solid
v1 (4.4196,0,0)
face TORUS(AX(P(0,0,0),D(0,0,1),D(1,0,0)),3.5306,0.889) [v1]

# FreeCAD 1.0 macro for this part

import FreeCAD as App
import Part
import Sketcher
from FreeCAD import Vector
Q = App.Units.Quantity

doc = App.newDocument("Part")
body = doc.addObject("PartDesign::Body", "Body")

# Sketch on YZ plane
sketch1 = body.newObject("Sketcher::SketchObject", "Sketch")
sketch1.AttachmentSupport = (doc.getObject("YZ_Plane"), [""])
sketch1.MapMode = "FlatFace"
sketch1.addGeometry(Part.Circle(Vector(-3.5306, 0, 0), Vector(0, 0, 1), 0.889), False)
sketch1.addConstraint(Sketcher.Constraint("PointOnObject", 0, 3, -1))
sketch1.addConstraint(Sketcher.Constraint("Diameter", 0, Q("0.07 in")))
sketch1.addConstraint(Sketcher.Constraint("DistanceX", 0, 3, -1, 1, Q("0.139 in")))
revolution = body.newObject("PartDesign::Revolution", "Revolution")
revolution.Profile = sketch1
revolution.ReferenceAxis = (sketch1, ["V_Axis"])
revolution.Angle = 360

doc.recompute()
